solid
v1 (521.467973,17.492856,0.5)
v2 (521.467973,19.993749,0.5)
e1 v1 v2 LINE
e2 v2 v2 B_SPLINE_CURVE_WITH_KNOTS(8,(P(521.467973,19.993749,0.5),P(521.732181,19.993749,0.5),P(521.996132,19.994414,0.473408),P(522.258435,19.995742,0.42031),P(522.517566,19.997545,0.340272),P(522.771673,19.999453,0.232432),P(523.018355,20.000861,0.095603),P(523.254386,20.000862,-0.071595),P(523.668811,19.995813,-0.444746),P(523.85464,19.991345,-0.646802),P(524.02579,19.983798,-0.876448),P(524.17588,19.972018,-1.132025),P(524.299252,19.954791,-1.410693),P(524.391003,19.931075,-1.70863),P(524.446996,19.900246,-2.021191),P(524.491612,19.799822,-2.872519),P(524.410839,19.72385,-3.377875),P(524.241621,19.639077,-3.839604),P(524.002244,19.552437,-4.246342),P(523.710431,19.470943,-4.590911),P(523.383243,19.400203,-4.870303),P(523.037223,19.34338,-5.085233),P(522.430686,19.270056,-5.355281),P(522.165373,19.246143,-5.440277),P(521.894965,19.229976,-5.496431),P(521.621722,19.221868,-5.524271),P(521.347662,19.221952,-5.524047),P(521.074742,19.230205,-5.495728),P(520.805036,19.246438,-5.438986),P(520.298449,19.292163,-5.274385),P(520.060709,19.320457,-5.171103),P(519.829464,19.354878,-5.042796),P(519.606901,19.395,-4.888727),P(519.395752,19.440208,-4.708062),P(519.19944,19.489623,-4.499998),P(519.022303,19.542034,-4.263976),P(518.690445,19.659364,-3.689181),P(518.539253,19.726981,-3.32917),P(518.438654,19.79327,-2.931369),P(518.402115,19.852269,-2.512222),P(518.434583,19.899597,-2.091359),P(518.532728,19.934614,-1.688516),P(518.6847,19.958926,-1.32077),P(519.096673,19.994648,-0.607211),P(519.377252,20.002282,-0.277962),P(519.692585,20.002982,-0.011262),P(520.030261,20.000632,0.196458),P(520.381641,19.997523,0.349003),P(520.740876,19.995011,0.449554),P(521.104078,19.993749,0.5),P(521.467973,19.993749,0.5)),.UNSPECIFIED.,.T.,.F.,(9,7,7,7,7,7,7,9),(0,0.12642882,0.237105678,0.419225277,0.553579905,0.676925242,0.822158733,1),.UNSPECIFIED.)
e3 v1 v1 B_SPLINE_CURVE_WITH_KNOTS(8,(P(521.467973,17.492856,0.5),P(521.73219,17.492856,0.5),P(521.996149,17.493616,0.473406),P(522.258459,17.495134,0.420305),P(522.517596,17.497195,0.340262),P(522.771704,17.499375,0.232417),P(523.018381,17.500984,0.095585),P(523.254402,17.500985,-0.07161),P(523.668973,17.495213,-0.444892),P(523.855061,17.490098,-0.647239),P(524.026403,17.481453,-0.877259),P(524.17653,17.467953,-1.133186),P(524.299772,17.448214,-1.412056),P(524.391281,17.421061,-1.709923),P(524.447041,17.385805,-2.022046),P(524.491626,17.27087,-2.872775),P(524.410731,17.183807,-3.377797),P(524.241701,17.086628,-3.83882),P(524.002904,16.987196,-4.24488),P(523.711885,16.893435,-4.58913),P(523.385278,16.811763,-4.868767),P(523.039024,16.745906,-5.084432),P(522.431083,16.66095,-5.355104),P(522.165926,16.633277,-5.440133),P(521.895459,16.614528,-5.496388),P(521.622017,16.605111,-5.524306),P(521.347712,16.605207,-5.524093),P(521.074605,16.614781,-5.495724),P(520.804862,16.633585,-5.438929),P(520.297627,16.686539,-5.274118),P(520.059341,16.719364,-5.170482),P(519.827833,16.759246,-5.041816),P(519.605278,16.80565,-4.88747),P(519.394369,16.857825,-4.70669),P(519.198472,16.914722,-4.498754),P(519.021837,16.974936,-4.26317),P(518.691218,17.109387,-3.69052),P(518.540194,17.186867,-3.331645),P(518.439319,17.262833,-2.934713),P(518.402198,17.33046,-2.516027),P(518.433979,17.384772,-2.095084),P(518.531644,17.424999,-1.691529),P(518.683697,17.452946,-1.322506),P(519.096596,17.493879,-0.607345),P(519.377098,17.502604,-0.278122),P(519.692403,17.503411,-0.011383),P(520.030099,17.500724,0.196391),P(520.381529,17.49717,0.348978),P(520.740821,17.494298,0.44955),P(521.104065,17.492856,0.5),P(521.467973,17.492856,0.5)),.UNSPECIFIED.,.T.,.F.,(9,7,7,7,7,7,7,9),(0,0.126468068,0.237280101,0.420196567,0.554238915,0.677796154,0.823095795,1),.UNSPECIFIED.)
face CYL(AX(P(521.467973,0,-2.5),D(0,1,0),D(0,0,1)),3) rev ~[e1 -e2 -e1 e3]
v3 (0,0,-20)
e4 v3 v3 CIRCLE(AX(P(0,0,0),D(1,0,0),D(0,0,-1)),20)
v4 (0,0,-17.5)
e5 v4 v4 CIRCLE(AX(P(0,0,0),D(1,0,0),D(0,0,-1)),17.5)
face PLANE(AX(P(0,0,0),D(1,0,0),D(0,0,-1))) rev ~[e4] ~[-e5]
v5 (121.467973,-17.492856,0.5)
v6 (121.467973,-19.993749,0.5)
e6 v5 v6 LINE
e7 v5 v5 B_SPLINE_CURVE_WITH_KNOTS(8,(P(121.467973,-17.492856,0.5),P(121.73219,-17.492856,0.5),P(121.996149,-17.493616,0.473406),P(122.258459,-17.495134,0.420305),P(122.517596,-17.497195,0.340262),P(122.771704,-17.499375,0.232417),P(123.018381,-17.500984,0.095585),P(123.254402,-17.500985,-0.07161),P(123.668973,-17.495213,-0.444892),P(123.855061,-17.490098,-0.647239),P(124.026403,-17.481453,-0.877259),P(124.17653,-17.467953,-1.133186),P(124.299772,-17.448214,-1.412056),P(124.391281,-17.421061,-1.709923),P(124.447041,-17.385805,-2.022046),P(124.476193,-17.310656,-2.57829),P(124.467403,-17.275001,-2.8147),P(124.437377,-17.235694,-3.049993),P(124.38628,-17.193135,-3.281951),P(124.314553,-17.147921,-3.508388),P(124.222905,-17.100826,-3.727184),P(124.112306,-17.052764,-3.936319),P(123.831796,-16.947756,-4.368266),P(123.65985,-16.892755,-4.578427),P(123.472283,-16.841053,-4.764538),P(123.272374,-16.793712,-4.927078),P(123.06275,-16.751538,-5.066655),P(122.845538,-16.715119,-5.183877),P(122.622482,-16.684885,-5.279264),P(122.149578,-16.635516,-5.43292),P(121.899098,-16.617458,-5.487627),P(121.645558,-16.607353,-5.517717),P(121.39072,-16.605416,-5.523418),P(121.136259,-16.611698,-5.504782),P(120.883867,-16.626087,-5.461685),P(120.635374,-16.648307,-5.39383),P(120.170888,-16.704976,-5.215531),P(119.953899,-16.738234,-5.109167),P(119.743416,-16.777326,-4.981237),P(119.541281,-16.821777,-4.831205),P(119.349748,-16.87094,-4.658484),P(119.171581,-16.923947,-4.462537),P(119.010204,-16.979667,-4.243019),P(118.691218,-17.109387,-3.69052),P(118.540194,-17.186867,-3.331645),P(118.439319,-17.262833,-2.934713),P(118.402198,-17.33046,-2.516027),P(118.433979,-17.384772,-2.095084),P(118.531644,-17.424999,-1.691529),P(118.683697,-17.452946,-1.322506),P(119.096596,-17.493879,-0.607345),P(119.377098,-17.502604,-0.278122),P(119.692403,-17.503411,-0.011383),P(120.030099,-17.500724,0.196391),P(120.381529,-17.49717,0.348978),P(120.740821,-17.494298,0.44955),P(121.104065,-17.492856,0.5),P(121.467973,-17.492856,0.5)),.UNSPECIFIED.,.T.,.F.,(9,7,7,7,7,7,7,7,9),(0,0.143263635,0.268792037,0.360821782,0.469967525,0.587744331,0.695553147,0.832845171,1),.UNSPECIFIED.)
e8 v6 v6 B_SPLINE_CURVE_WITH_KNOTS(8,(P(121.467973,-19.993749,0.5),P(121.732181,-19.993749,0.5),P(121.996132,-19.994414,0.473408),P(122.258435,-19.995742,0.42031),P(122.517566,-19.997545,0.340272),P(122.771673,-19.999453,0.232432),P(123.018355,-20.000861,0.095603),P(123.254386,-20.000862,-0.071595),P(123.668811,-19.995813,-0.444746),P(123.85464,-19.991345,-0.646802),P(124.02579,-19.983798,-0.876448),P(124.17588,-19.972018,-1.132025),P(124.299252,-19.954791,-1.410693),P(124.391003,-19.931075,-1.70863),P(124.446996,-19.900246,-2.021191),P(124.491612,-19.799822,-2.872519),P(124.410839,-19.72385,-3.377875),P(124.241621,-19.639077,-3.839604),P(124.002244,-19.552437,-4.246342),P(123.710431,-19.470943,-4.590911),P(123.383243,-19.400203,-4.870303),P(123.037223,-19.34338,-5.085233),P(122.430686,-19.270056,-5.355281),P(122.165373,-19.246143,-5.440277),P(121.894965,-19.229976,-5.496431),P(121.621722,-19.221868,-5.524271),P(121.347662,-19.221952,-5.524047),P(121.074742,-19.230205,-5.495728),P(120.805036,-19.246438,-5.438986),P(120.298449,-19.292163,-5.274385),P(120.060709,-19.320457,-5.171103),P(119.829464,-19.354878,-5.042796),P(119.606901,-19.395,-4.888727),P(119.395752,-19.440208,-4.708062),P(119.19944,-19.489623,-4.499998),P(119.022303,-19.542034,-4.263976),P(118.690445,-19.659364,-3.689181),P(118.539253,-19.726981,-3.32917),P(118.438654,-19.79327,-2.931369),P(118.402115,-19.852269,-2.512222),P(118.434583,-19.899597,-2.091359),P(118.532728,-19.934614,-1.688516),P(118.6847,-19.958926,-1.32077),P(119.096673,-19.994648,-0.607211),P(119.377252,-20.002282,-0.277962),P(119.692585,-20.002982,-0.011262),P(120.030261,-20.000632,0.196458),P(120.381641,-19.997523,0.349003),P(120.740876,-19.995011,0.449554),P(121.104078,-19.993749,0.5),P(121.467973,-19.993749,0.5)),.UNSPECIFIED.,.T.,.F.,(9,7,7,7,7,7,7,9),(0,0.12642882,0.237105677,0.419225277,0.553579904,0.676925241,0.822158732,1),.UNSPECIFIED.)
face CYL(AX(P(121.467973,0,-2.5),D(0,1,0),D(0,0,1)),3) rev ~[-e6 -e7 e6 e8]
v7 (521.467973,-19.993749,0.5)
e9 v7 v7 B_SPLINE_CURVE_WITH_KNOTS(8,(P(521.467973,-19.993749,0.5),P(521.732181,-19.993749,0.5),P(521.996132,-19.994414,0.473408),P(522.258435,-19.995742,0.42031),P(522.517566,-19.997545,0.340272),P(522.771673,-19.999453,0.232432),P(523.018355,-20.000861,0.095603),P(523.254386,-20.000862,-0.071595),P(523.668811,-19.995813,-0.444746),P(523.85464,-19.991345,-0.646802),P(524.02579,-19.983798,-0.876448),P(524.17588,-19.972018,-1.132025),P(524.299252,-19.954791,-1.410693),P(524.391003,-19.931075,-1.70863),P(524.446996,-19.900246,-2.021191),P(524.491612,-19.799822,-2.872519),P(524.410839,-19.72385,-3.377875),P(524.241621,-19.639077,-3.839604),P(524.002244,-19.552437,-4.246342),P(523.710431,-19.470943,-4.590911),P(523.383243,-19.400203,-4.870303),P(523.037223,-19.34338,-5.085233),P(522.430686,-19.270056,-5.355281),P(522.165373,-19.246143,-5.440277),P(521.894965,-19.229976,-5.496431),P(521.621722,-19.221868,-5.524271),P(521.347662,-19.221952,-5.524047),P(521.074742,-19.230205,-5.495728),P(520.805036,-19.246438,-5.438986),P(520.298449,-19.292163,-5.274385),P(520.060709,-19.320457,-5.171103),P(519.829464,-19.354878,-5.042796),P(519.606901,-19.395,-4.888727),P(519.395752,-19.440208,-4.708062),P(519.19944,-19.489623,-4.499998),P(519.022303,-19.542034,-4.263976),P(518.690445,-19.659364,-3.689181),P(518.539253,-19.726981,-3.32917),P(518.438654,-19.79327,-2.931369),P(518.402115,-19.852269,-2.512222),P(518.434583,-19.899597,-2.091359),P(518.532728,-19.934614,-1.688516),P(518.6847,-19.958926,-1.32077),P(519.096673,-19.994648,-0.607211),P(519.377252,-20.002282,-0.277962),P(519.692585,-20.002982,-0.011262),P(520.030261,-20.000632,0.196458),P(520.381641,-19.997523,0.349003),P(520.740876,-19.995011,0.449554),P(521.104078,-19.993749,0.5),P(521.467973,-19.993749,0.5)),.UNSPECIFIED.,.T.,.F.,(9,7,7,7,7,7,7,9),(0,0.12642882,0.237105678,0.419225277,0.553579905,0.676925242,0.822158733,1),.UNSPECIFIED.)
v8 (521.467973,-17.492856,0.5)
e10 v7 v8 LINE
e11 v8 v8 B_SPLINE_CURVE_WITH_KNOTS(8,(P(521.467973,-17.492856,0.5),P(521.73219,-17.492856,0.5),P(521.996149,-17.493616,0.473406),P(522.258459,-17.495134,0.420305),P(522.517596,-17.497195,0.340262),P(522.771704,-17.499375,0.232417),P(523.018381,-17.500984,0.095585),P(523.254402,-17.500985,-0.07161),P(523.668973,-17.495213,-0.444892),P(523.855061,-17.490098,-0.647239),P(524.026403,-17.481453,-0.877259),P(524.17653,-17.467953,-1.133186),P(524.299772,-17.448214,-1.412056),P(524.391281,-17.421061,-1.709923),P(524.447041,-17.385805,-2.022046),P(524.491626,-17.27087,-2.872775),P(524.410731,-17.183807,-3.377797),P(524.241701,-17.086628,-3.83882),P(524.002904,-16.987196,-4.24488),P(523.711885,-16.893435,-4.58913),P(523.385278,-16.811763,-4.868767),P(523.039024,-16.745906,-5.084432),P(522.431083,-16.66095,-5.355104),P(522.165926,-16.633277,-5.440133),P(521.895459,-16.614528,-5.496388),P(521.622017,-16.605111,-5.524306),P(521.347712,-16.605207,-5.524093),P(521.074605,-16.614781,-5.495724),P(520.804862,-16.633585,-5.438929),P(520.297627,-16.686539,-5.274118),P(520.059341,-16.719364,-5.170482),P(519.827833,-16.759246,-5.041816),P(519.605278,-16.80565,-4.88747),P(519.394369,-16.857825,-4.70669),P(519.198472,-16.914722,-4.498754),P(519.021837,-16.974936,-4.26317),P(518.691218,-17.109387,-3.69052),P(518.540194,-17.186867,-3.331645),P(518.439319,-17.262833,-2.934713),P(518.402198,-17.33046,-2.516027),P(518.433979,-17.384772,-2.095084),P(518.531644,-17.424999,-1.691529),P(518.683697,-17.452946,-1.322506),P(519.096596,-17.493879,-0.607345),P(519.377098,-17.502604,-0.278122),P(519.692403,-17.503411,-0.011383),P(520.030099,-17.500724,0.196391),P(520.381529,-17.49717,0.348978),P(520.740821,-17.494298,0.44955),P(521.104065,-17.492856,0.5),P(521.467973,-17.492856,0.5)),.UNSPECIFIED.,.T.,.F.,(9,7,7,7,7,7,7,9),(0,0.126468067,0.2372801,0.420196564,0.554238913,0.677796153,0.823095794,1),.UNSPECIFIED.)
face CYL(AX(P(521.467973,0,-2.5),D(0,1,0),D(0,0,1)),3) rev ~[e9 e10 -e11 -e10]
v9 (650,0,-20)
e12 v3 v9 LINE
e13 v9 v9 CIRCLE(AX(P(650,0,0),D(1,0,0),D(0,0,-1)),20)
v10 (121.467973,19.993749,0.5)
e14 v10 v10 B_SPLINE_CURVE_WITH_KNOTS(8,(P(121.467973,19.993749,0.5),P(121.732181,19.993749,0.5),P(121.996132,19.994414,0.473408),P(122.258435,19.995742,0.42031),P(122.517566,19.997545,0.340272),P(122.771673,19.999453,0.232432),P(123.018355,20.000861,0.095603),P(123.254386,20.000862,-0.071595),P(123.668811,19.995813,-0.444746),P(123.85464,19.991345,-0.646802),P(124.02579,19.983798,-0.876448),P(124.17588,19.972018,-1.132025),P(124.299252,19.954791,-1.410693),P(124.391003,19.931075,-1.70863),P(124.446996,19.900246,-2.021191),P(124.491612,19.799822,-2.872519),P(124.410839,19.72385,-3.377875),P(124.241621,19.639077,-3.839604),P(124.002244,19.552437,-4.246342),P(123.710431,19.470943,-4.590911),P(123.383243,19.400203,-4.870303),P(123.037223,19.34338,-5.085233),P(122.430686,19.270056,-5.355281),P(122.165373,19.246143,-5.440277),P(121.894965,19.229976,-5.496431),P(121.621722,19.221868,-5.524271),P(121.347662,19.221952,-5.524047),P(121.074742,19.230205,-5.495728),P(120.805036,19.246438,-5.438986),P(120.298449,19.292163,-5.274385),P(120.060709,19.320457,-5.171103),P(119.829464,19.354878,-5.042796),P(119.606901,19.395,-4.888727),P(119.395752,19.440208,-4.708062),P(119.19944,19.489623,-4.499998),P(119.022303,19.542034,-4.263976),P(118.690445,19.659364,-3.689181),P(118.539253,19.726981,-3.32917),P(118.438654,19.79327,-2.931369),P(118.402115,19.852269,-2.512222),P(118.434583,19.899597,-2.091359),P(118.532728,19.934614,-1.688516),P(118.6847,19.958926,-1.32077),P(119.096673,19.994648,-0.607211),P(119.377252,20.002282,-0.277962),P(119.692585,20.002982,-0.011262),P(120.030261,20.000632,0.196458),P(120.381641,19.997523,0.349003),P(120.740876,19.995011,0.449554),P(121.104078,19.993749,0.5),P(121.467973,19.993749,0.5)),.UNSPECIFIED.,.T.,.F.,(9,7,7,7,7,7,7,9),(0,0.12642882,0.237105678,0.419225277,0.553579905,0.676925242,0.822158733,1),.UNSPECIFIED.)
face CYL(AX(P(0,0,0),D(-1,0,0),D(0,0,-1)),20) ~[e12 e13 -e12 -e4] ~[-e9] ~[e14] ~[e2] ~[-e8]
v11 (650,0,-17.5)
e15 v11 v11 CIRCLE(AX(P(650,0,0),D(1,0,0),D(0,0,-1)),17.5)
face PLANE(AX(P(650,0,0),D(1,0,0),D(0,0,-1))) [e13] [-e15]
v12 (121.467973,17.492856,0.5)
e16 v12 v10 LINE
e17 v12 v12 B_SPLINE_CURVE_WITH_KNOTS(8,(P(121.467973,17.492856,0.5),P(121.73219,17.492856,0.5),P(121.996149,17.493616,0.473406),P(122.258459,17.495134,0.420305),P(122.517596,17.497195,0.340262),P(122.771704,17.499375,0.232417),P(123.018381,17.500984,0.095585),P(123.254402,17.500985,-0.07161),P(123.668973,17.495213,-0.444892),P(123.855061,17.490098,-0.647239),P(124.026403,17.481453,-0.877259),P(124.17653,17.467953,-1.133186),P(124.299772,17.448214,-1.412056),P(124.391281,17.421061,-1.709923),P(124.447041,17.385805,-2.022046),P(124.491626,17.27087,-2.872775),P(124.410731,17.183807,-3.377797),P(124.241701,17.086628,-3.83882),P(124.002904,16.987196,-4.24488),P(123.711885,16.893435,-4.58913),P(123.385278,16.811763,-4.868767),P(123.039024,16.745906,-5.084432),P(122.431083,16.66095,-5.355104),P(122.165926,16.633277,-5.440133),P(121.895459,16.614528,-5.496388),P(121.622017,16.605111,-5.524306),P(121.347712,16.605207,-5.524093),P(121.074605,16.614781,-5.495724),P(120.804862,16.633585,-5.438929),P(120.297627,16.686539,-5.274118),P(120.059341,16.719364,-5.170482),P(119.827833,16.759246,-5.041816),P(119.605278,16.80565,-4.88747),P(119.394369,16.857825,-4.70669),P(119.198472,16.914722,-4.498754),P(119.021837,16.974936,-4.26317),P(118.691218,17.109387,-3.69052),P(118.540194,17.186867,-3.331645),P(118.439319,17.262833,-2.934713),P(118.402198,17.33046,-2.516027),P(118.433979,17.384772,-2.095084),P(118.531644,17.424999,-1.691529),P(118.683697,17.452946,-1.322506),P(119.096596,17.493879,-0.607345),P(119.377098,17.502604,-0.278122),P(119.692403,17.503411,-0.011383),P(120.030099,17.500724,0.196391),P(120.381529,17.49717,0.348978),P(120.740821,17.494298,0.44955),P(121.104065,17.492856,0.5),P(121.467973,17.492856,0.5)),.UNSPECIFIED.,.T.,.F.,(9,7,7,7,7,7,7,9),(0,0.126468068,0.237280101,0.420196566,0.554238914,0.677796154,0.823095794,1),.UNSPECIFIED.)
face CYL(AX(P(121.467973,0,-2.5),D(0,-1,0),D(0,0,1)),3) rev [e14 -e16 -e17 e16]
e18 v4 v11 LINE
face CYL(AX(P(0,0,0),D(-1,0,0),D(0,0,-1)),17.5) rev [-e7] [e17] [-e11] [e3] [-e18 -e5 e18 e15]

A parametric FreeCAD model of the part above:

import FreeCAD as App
import Part
import Sketcher

V = App.Vector
Q = App.Units.Quantity

doc = App.newDocument("Part")
body = doc.addObject("PartDesign::Body", "Body")

sketch1 = body.newObject("Sketcher::SketchObject", "Sketch")
sketch1.AttachmentSupport = (doc.getObject("YZ_Plane"), [""])
sketch1.MapMode = "FlatFace"
sketch1.addGeometry(Part.Circle(V(0, 0, 0), V(0, 0, 1), 20), False)
sketch1.addGeometry(Part.Circle(V(0, 0, 0), V(0, 0, 1), 18), False)
sketch1.addConstraint(Sketcher.Constraint("Coincident", 0, 3, -1, 1))
sketch1.addConstraint(Sketcher.Constraint("Coincident", 1, 3, -1, 1))
sketch1.addConstraint(Sketcher.Constraint("Diameter", 0, Q("40 mm")))
sketch1.addConstraint(Sketcher.Constraint("Diameter", 1, Q("35 mm")))
pad1 = body.newObject("PartDesign::Pad", "Pad")
pad1.Profile = sketch1
pad1.Length = 650

sketch2 = body.newObject("Sketcher::SketchObject", "Sketch001")
sketch2.AttachmentSupport = (doc.getObject("XZ_Plane"), [""])
sketch2.MapMode = "FlatFace"
sketch2.addGeometry(Part.Circle(V(121.5, -2.5, 0), V(0, 0, 1), 3), False)
sketch2.addGeometry(Part.Circle(V(521.5, -2.5, 0), V(0, 0, 1), 3), False)
sketch2.addConstraint(Sketcher.Constraint("Equal", 0, 1))
sketch2.addConstraint(Sketcher.Constraint("Horizontal", 0, 3, 1, 3))
sketch2.addConstraint(Sketcher.Constraint("Diameter", 0, Q("6 mm")))
sketch2.addConstraint(Sketcher.Constraint("DistanceX", 0, 3, 1, 3, Q("400 mm")))
sketch2.addConstraint(Sketcher.Constraint("DistanceY", 0, 3, -1, 1, Q("2.5 mm")))
sketch2.addConstraint(Sketcher.Constraint("DistanceX", -1, 1, 0, 3, Q("121.467973 mm")))
pocket1 = body.newObject("PartDesign::Pocket", "Pocket")
pocket1.Profile = sketch2
pocket1.Length = 60
pocket1.Midplane = True

doc.recompute()
